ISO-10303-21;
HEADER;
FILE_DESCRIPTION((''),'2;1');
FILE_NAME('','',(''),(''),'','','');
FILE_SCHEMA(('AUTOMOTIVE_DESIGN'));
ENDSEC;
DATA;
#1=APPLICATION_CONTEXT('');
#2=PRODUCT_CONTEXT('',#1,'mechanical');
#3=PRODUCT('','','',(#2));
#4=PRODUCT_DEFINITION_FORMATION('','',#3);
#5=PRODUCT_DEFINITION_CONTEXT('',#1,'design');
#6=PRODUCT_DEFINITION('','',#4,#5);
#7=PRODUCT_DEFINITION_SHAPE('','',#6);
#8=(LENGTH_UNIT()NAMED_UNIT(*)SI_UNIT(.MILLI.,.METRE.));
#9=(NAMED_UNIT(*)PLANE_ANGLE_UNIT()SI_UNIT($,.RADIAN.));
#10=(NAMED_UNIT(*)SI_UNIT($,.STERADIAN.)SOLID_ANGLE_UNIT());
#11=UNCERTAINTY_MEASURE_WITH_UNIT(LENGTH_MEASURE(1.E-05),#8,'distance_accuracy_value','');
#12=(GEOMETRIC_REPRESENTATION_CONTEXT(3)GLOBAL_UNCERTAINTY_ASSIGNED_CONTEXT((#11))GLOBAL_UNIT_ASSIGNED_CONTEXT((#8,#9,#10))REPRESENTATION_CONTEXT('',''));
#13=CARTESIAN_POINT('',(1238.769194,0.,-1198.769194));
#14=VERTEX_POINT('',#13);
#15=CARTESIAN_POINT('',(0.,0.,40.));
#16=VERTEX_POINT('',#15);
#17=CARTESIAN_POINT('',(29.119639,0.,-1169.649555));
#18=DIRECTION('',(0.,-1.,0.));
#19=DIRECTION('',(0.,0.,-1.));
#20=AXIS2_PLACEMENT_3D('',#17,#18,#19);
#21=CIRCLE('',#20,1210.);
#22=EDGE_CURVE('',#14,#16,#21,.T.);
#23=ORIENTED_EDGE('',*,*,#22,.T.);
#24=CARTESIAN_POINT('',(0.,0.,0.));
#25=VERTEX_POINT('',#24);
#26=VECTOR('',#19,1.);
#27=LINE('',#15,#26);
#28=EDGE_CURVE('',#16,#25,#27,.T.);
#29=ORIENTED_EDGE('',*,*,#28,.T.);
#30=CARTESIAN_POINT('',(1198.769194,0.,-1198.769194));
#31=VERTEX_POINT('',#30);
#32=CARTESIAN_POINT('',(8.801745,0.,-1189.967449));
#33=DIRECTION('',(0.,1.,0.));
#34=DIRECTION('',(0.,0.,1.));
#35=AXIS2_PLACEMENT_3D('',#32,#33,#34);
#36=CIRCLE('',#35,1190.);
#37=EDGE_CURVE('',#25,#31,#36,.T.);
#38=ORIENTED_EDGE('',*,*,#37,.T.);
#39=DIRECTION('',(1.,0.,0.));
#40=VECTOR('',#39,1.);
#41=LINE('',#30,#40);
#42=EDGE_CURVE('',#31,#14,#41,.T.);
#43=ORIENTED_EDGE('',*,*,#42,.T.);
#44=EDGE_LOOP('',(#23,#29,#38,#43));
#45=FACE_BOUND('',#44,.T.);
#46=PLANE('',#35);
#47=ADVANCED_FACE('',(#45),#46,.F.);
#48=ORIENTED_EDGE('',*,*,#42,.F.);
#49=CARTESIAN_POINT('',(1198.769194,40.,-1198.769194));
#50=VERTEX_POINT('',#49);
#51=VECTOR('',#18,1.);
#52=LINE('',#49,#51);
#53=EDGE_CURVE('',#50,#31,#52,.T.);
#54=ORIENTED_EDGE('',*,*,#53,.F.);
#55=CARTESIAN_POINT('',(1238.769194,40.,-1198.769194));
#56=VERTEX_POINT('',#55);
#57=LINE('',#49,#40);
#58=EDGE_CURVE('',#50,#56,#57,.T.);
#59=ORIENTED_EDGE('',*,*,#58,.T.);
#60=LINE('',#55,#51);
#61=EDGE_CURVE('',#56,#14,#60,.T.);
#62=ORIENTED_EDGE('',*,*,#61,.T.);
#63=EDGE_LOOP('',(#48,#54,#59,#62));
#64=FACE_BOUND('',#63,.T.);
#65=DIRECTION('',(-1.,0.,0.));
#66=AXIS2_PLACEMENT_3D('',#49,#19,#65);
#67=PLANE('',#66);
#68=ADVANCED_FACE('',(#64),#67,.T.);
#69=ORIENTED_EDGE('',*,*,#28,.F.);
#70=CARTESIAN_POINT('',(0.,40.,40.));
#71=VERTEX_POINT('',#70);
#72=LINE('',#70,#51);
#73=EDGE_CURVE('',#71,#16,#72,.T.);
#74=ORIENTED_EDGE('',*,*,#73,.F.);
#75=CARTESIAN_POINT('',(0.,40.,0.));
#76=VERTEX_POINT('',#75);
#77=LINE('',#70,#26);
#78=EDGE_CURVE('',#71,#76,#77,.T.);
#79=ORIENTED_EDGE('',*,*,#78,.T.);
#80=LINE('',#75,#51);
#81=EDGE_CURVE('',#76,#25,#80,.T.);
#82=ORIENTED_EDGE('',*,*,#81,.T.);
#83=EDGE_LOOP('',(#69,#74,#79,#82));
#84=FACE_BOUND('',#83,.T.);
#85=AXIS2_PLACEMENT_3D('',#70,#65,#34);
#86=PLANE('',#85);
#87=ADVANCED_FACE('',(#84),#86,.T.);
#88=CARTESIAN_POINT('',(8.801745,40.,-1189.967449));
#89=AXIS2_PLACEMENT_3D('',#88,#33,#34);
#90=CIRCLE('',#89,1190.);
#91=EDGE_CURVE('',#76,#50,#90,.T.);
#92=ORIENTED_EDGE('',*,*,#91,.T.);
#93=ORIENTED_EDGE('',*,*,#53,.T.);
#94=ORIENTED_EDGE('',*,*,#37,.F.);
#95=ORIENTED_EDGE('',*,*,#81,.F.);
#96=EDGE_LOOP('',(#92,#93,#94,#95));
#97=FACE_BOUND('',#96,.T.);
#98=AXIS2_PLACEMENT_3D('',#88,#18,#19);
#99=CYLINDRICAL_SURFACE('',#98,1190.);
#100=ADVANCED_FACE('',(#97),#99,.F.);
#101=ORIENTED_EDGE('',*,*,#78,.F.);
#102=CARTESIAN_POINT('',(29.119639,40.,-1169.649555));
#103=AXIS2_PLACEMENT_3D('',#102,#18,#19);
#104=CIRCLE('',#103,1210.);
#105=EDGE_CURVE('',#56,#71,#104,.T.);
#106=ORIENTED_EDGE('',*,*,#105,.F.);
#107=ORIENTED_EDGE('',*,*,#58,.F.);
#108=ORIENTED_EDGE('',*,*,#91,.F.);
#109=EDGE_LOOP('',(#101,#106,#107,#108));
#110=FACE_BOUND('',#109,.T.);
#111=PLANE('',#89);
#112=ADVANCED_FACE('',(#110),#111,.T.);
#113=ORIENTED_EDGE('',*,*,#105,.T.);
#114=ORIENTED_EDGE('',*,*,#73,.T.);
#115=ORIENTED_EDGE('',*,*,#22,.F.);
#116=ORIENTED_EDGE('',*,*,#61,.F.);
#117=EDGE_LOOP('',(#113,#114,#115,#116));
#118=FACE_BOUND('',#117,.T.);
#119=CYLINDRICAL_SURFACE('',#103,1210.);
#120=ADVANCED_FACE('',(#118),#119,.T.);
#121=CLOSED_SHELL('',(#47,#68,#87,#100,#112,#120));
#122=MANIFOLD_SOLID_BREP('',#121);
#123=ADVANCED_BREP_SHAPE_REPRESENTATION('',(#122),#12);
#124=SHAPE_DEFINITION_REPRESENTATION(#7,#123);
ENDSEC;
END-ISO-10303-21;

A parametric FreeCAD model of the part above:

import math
import FreeCAD as App
import Part
import Sketcher

V = App.Vector

doc = App.newDocument("Part")
params = doc.addObject("Spreadsheet::Sheet", "Params")
for row, (alias, value) in enumerate([
    ("sketch1_radius", "1210 mm"),
    ("sketch1_radius2", "1190 mm"),
    ("sketch1_width", "40 mm"),
    ("pad1_length", "40 mm"),
], start=1):
    params.set(f"A{row}", alias)
    params.set(f"B{row}", "=" + value)
    params.setAlias(f"B{row}", alias)

body = doc.addObject("PartDesign::Body", "Body")

sketch1 = body.newObject("Sketcher::SketchObject", "Sketch")
sketch1.AttachmentSupport = (doc.getObject("XZ_Plane"), [""])
sketch1.MapMode = "FlatFace"
sketch1.addGeometry(Part.LineSegment(V(0, 0, 0), V(0, 40, 0)), False)
sketch1.addGeometry(Part.ArcOfCircle(Part.Circle(V(29, -1170, 0), V(0, 0, 1), 1210), math.radians(-1), math.radians(91)), False)
sketch1.addGeometry(Part.LineSegment(V(1239, -1199, 0), V(1199, -1199, 0)), False)
sketch1.addGeometry(Part.ArcOfCircle(Part.Circle(V(9, -1190, 0), V(0, 0, 1), 1190), math.radians(0), math.radians(90)), False)
sketch1.addConstraint(Sketcher.Constraint("Coincident", 0, 2, 1, 2))
sketch1.addConstraint(Sketcher.Constraint("Coincident", 1, 1, 2, 1))
sketch1.addConstraint(Sketcher.Constraint("Coincident", 2, 2, 3, 1))
sketch1.addConstraint(Sketcher.Constraint("Coincident", 3, 2, 0, 1))
sketch1.addConstraint(Sketcher.Constraint("Vertical", 0))
sketch1.addConstraint(Sketcher.Constraint("Horizontal", 2))
sketch1.addConstraint(Sketcher.Constraint("PointOnObject", 0, 2, -2))
sketch1.addConstraint(Sketcher.Constraint("Equal", 2, 0))
sketch1.addConstraint(Sketcher.Constraint("Radius", 1, 1210.0))
sketch1.addConstraint(Sketcher.Constraint("Radius", 3, 1190.0))
sketch1.addConstraint(Sketcher.Constraint("DistanceX", 2, 2, 2, 1, 40.0))
sketch1.addConstraint(Sketcher.Constraint("DistanceY", -1, 1, 0, 2, 40.0))
sketch1.addConstraint(Sketcher.Constraint("DistanceX", -1, 1, 1, 3, 29.119639))
sketch1.addConstraint(Sketcher.Constraint("DistanceY", 2, 2, 1, 3, 29.119639))
sketch1.setExpression("Constraints[8]", "Params.sketch1_radius")
sketch1.setExpression("Constraints[9]", "Params.sketch1_radius2")
sketch1.setExpression("Constraints[10]", "Params.sketch1_width")
pad1 = body.newObject("PartDesign::Pad", "Pad")
pad1.Profile = sketch1
pad1.setExpression("Length", "Params.pad1_length")
pad1.Reversed = True

doc.recompute()
